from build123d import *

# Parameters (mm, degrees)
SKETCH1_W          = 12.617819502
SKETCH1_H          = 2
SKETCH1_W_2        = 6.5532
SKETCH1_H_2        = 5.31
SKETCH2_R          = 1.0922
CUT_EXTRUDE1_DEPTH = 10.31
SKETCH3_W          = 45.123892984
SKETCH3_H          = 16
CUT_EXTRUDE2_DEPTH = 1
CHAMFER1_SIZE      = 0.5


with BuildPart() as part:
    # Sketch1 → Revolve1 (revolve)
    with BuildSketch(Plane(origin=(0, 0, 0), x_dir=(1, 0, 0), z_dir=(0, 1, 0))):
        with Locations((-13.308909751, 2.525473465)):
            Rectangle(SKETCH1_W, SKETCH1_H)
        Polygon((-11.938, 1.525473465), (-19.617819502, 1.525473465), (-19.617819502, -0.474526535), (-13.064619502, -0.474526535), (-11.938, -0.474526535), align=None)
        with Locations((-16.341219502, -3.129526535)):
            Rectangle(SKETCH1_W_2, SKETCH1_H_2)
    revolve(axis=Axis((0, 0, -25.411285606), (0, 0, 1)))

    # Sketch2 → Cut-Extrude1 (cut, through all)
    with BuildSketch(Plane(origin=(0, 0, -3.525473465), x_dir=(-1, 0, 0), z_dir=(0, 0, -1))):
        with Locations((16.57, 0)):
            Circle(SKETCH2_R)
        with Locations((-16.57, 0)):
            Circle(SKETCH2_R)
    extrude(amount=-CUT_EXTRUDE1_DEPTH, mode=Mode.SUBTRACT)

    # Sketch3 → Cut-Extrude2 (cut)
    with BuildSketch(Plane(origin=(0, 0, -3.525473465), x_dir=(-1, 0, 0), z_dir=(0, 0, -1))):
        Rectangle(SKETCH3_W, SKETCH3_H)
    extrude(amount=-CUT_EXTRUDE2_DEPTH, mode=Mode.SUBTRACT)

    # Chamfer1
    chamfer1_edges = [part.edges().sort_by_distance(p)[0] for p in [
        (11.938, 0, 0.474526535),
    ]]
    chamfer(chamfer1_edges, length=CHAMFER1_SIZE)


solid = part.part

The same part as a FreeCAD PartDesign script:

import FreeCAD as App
import Part
import Sketcher
from FreeCAD import Vector


def edges_at(feature, points):
    """Names of the edges that pass closest to the given points."""
    edges = feature.Shape.Edges
    near = lambda p: min(range(len(edges)), key=lambda i: edges[i].distToShape(Part.Vertex(*p))[0])
    return sorted({f"Edge{near(p) + 1}" for p in points})

doc = App.newDocument("Part")
body = doc.addObject("PartDesign::Body", "Body")

sketch1 = doc.addObject("Sketcher::SketchObject", "Sketch")
body.addObject(sketch1)
sketch1.AttachmentSupport = (doc.XZ_Plane, [""])
sketch1.MapMode = "FlatFace"
sketch1.addGeometry([
    Part.LineSegment(Vector(-19.6, -3.5, 0), Vector(-19.6, 5.8, 0)),
    Part.LineSegment(Vector(-19.6, 5.8, 0), Vector(-13.1, 5.8, 0)),
    Part.LineSegment(Vector(-13.1, 5.8, 0), Vector(-13.1, 0.5, 0)),
    Part.LineSegment(Vector(-13.1, 0.5, 0), Vector(-11.9, 0.5, 0)),
    Part.LineSegment(Vector(-11.9, 0.5, 0), Vector(-11.9, -1.5, 0)),
    Part.LineSegment(Vector(-11.9, -1.5, 0), Vector(-7, -1.5, 0)),
    Part.LineSegment(Vector(-7, -1.5, 0), Vector(-7, -3.5, 0)),
    Part.LineSegment(Vector(-7, -3.5, 0), Vector(-19.6, -3.5, 0)),
], False)
sketch1.addConstraint([
    Sketcher.Constraint("Coincident", 0, 2, 1, 1),
    Sketcher.Constraint("Coincident", 1, 2, 2, 1),
    Sketcher.Constraint("Coincident", 2, 2, 3, 1),
    Sketcher.Constraint("Coincident", 3, 2, 4, 1),
    Sketcher.Constraint("Coincident", 4, 2, 5, 1),
    Sketcher.Constraint("Coincident", 5, 2, 6, 1),
    Sketcher.Constraint("Coincident", 6, 2, 7, 1),
    Sketcher.Constraint("Coincident", 7, 2, 0, 1),
    Sketcher.Constraint("Vertical", 0),
    Sketcher.Constraint("Horizontal", 1),
    Sketcher.Constraint("Vertical", 2),
    Sketcher.Constraint("Horizontal", 3),
    Sketcher.Constraint("Vertical", 4),
    Sketcher.Constraint("Horizontal", 5),
    Sketcher.Constraint("Vertical", 6),
    Sketcher.Constraint("Horizontal", 7),
    Sketcher.Constraint("Equal", 4, 6),
    Sketcher.Constraint("DistanceY", 4, 2, 4, 1, 2.0),
    Sketcher.Constraint("DistanceX", 5, 2, -1, 1, 7.0),
    Sketcher.Constraint("DistanceY", 0, 1, 0, 2, 9.31),
    Sketcher.Constraint("DistanceX", 5, 1, 5, 2, 4.938),
    Sketcher.Constraint("DistanceX", 1, 1, 1, 2, 6.5532),
    Sketcher.Constraint("DistanceX", 3, 1, 3, 2, 1.12662),
    Sketcher.Constraint("DistanceY", -1, 1, 0, 2, 5.784527),
])
revolution = doc.addObject("PartDesign::Revolution", "Revolution")
body.addObject(revolution)
revolution.Profile = sketch1
revolution.ReferenceAxis = (sketch1, ["V_Axis"])
revolution.Angle = 360

sketch2 = doc.addObject("Sketcher::SketchObject", "Sketch001")
body.addObject(sketch2)
sketch2.AttachmentSupport = (doc.XY_Plane, [""])
sketch2.MapMode = "FlatFace"
sketch2.AttachmentOffset = App.Placement(Vector(0, 0, -3.525473), App.Rotation())
sketch2.addGeometry([
    Part.Circle(Vector(-16.6, 0, 0), Vector(0, 0, 1), 1.1),
    Part.Circle(Vector(16.6, 0, 0), Vector(0, 0, 1), 1.1),
], False)
sketch2.addConstraint([
    Sketcher.Constraint("Equal", 0, 1),
    Sketcher.Constraint("Symmetric", 0, 3, 1, 3, -1, 1),
    Sketcher.Constraint("PointOnObject", 0, 3, -1),
    Sketcher.Constraint("Diameter", 0, 2.1844),
    Sketcher.Constraint("DistanceX", 0, 3, -1, 1, 16.57),
])
pocket1 = doc.addObject("PartDesign::Pocket", "Pocket")
body.addObject(pocket1)
pocket1.Profile = sketch2
pocket1.Type = "ThroughAll"
pocket1.Reversed = True

sketch3 = doc.addObject("Sketcher::SketchObject", "Sketch002")
body.addObject(sketch3)
sketch3.AttachmentSupport = (doc.XY_Plane, [""])
sketch3.MapMode = "FlatFace"
sketch3.AttachmentOffset = App.Placement(Vector(0, 0, -3.525473), App.Rotation())
sketch3.addGeometry([
    Part.LineSegment(Vector(23, 8, 0), Vector(23, -8, 0)),
    Part.LineSegment(Vector(23, -8, 0), Vector(-23, -8, 0)),
    Part.LineSegment(Vector(-23, -8, 0), Vector(-23, 8, 0)),
    Part.LineSegment(Vector(-23, 8, 0), Vector(23, 8, 0)),
], False)
sketch3.addConstraint([
    Sketcher.Constraint("Coincident", 0, 2, 1, 1),
    Sketcher.Constraint("Coincident", 1, 2, 2, 1),
    Sketcher.Constraint("Coincident", 2, 2, 3, 1),
    Sketcher.Constraint("Coincident", 3, 2, 0, 1),
    Sketcher.Constraint("Vertical", 0),
    Sketcher.Constraint("Horizontal", 1),
    Sketcher.Constraint("Vertical", 2),
    Sketcher.Constraint("Horizontal", 3),
    Sketcher.Constraint("Symmetric", 0, 2, 2, 2, -1, 1),
    Sketcher.Constraint("DistanceY", 0, 2, 0, 1, 16.0),
    Sketcher.Constraint("DistanceX", 1, 2, 1, 1, 45.123893),
])
pocket2 = doc.addObject("PartDesign::Pocket", "Pocket001")
body.addObject(pocket2)
pocket2.Profile = sketch3
pocket2.Length = 1
pocket2.Reversed = True
doc.recompute()

chamfer = doc.addObject("PartDesign::Chamfer", "Chamfer")
body.addObject(chamfer)
chamfer.Base = (pocket2, edges_at(pocket2, [(11.938, 0, 0.475)]))
chamfer.Size = 0.5

doc.recompute()
